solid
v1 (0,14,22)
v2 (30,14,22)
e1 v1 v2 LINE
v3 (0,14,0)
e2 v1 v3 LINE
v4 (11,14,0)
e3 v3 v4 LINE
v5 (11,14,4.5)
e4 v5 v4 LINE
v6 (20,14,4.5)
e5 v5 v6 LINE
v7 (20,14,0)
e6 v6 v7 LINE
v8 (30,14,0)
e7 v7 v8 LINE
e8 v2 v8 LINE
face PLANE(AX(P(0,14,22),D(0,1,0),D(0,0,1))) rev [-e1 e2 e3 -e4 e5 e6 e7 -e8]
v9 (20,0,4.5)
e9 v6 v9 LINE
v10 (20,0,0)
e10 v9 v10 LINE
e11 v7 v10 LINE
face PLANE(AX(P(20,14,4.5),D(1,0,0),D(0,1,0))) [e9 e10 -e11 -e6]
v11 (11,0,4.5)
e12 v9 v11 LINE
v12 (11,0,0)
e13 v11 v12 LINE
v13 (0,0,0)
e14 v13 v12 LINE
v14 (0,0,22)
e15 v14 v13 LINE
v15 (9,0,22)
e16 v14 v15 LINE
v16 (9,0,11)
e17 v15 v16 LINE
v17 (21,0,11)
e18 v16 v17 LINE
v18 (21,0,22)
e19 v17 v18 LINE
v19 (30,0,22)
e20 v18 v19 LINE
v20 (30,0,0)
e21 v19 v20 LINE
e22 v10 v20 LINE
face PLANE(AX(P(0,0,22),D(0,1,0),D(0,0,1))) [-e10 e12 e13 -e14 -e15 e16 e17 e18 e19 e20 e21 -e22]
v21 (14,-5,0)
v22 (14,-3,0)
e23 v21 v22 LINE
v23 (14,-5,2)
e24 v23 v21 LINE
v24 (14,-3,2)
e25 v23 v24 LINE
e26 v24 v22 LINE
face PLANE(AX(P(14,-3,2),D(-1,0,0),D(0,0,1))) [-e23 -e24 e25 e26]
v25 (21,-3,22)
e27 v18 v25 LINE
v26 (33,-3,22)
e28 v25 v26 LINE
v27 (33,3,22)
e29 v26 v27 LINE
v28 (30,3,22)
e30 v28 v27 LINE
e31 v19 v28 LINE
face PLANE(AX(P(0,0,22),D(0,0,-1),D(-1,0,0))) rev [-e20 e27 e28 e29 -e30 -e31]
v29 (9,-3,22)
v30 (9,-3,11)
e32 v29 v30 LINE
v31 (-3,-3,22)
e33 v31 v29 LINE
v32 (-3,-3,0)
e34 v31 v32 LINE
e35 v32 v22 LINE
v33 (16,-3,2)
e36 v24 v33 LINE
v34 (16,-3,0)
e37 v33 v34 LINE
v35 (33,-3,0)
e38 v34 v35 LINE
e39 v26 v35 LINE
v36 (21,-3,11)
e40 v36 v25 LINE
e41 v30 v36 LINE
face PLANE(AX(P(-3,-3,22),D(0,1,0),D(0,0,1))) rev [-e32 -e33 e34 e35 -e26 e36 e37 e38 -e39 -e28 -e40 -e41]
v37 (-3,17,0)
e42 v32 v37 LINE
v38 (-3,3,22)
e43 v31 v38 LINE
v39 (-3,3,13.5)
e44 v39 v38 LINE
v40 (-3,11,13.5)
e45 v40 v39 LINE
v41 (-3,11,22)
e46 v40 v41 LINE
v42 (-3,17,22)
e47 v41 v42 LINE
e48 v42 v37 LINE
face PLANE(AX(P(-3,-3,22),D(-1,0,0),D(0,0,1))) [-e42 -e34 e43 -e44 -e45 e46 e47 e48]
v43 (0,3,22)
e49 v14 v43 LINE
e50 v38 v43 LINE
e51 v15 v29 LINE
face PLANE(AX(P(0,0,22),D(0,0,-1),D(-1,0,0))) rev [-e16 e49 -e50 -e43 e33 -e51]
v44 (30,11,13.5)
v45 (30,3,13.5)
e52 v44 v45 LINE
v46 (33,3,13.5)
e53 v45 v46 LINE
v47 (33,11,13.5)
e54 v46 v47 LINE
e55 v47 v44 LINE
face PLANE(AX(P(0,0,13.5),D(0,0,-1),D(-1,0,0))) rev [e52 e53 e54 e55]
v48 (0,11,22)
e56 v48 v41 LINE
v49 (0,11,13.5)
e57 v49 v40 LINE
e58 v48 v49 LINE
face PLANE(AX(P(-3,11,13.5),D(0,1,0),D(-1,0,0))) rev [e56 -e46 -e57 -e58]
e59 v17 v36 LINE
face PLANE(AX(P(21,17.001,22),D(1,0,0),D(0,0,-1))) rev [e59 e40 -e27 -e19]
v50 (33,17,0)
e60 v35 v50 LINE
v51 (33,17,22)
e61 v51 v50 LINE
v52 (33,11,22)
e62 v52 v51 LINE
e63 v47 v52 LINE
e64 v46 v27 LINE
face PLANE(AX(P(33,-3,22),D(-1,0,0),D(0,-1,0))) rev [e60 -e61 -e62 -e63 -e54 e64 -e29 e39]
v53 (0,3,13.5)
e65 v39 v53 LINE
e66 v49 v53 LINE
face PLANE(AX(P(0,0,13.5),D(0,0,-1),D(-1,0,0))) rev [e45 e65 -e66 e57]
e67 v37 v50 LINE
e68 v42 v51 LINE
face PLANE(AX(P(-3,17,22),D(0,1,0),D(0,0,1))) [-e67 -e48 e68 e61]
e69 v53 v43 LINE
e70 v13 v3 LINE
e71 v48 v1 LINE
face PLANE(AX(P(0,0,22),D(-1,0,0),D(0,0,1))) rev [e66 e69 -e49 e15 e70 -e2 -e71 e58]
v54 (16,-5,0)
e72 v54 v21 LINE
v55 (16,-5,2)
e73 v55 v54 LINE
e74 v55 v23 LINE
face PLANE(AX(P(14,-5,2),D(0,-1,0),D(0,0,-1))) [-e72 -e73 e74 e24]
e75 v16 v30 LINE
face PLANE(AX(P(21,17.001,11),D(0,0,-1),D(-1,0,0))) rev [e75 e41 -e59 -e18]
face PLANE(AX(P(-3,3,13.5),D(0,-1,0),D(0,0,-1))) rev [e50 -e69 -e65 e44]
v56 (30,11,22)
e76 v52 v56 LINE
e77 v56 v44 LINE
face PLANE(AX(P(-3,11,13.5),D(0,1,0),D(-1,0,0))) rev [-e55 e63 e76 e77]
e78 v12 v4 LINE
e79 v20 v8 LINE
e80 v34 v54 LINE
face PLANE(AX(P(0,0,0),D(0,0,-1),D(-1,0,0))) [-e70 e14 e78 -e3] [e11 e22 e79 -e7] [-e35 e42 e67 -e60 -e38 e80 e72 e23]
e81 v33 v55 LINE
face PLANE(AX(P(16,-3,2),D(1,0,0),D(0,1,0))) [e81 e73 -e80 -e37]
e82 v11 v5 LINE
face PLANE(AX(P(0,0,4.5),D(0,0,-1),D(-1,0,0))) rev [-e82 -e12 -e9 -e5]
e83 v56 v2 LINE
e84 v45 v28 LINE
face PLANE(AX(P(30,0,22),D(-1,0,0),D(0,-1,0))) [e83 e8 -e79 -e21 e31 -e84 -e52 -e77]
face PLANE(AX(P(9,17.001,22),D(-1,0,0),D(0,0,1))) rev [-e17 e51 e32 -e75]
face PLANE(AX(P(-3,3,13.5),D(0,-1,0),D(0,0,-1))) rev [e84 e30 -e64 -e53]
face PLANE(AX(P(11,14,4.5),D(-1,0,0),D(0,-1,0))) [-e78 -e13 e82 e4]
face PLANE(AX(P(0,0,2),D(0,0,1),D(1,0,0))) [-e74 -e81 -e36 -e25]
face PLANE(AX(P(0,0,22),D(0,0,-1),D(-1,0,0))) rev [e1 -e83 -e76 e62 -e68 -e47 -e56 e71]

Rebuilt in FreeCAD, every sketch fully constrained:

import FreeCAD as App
import Part
import Sketcher

V = App.Vector
Q = App.Units.Quantity


def add_polygon(sketch, points):
    """Adds a closed chain of lines whose ends are joined by coincident constraints."""
    first, n = sketch.GeometryCount, len(points)
    for a, b in zip(points, points[1:] + points[:1]):
        sketch.addGeometry(Part.LineSegment(App.Vector(*a, 0), App.Vector(*b, 0)), False)
    for i in range(n):
        sketch.addConstraint(Sketcher.Constraint("Coincident", first + i, 2, first + (i + 1) % n, 1))

doc = App.newDocument("Part")
params = doc.addObject("Spreadsheet::Sheet", "Params")
for row, (alias, value) in enumerate([
    ("sketch1_width", "36 mm"),
    ("sketch1_width2", "30 mm"),
    ("sketch1_height", "20 mm"),
    ("sketch1_height2", "14 mm"),
    ("pad1_length", "22 mm"),
    ("sketch2_width", "9 mm"),
    ("sketch2_height", "14 mm"),
    ("pad2_length", "4.5 mm"),
    ("sketch3_width", "2 mm"),
    ("pad3_length", "2 mm"),
    ("sketch4_width", "12 mm"),
    ("sketch4_height", "11 mm"),
    ("sketch5_width", "36 mm"),
    ("sketch5_height", "8 mm"),
    ("pocket2_length", "8.5 mm"),
], start=1):
    params.set(f"A{row}", alias)
    params.set(f"B{row}", "=" + value)
    params.setAlias(f"B{row}", alias)

body = doc.addObject("PartDesign::Body", "Body")

# Sketch on XY plane
sketch1 = doc.addObject("Sketcher::SketchObject", "Sketch")
body.addObject(sketch1)
sketch1.AttachmentSupport = (doc.XY_Plane, [""])
sketch1.MapMode = "FlatFace"
add_polygon(sketch1, [(-3, 17), (-3, -3), (33, -3), (33, 17)])  # lines 0-3
add_polygon(sketch1, [(30, 0), (0, 0), (0, 14), (30, 14)])  # lines 4-7
sketch1.addConstraint([
    Sketcher.Constraint("Vertical", 0),
    Sketcher.Constraint("Horizontal", 1),
    Sketcher.Constraint("Vertical", 2),
    Sketcher.Constraint("Horizontal", 3),
    Sketcher.Constraint("Horizontal", 4),
    Sketcher.Constraint("Vertical", 5),
    Sketcher.Constraint("Horizontal", 6),
    Sketcher.Constraint("Vertical", 7),
    Sketcher.Constraint("Coincident", 4, 2, -1, 1),
    Sketcher.Constraint("DistanceX", 1, 1, 1, 2, Q("36 mm")),
    Sketcher.Constraint("DistanceX", 4, 2, 4, 1, Q("30 mm")),
    Sketcher.Constraint("DistanceY", 0, 2, 0, 1, Q("20 mm")),
    Sketcher.Constraint("DistanceY", 5, 1, 5, 2, Q("14 mm")),
    Sketcher.Constraint("DistanceX", 0, 2, -1, 1, Q("3 mm")),
    Sketcher.Constraint("DistanceY", 0, 2, -1, 1, Q("3 mm")),
])
sketch1.setExpression("Constraints[17]", "Params.sketch1_width")
sketch1.setExpression("Constraints[18]", "Params.sketch1_width2")
sketch1.setExpression("Constraints[19]", "Params.sketch1_height")
sketch1.setExpression("Constraints[20]", "Params.sketch1_height2")
pad1 = doc.addObject("PartDesign::Pad", "Pad")
body.addObject(pad1)
pad1.Profile = sketch1
pad1.setExpression("Length", "Params.pad1_length")

# Sketch on XY plane
sketch2 = doc.addObject("Sketcher::SketchObject", "Sketch001")
body.addObject(sketch2)
sketch2.AttachmentSupport = (doc.XY_Plane, [""])
sketch2.MapMode = "FlatFace"
add_polygon(sketch2, [(20, 14), (20, 0), (11, 0), (11, 14)])  # lines 0-3
sketch2.addConstraint([
    Sketcher.Constraint("Vertical", 0),
    Sketcher.Constraint("Horizontal", 1),
    Sketcher.Constraint("Vertical", 2),
    Sketcher.Constraint("Horizontal", 3),
    Sketcher.Constraint("PointOnObject", 0, 2, -1),
    Sketcher.Constraint("DistanceX", 1, 2, 1, 1, Q("9 mm")),
    Sketcher.Constraint("DistanceY", 0, 2, 0, 1, Q("14 mm")),
    Sketcher.Constraint("DistanceX", -1, 1, 0, 2, Q("20 mm")),
])
sketch2.setExpression("Constraints[9]", "Params.sketch2_width")
sketch2.setExpression("Constraints[10]", "Params.sketch2_height")
pad2 = doc.addObject("PartDesign::Pad", "Pad001")
body.addObject(pad2)
pad2.Profile = sketch2
pad2.setExpression("Length", "Params.pad2_length")

# Sketch on XY plane
sketch3 = doc.addObject("Sketcher::SketchObject", "Sketch002")
body.addObject(sketch3)
sketch3.AttachmentSupport = (doc.XY_Plane, [""])
sketch3.MapMode = "FlatFace"
add_polygon(sketch3, [(16, -3), (16, -5), (14, -5), (14, -3)])  # lines 0-3
sketch3.addConstraint([
    Sketcher.Constraint("Vertical", 0),
    Sketcher.Constraint("Horizontal", 1),
    Sketcher.Constraint("Vertical", 2),
    Sketcher.Constraint("Horizontal", 3),
    Sketcher.Constraint("Equal", 3, 0),
    Sketcher.Constraint("DistanceX", 1, 2, 1, 1, Q("2 mm")),
    Sketcher.Constraint("DistanceX", -1, 1, 0, 2, Q("16 mm")),
    Sketcher.Constraint("DistanceY", 0, 2, -1, 1, Q("5 mm")),
])
sketch3.setExpression("Constraints[9]", "Params.sketch3_width")
pad3 = doc.addObject("PartDesign::Pad", "Pad002")
body.addObject(pad3)
pad3.Profile = sketch3
pad3.setExpression("Length", "Params.pad3_length")

# Sketch on XZ plane
sketch4 = doc.addObject("Sketcher::SketchObject", "Sketch003")
body.addObject(sketch4)
sketch4.AttachmentSupport = (doc.XZ_Plane, [""])
sketch4.MapMode = "FlatFace"
sketch4.AttachmentOffset = App.Placement(V(0, 0, 3), App.Rotation())
add_polygon(sketch4, [(9, 22), (9, 11), (21, 11), (21, 22)])  # lines 0-3
sketch4.addConstraint([
    Sketcher.Constraint("Vertical", 0),
    Sketcher.Constraint("Horizontal", 1),
    Sketcher.Constraint("Vertical", 2),
    Sketcher.Constraint("Horizontal", 3),
    Sketcher.Constraint("DistanceX", 1, 1, 1, 2, Q("12 mm")),
    Sketcher.Constraint("DistanceY", 0, 2, 0, 1, Q("11 mm")),
    Sketcher.Constraint("DistanceX", -1, 1, 0, 2, Q("9 mm")),
    Sketcher.Constraint("DistanceY", -1, 1, 0, 2, Q("11 mm")),
])
sketch4.setExpression("Constraints[8]", "Params.sketch4_width")
sketch4.setExpression("Constraints[9]", "Params.sketch4_height")
pocket1 = doc.addObject("PartDesign::Pocket", "Pocket")
body.addObject(pocket1)
pocket1.Profile = sketch4
pocket1.Type = "UpToFirst"

# Sketch on XY plane
sketch5 = doc.addObject("Sketcher::SketchObject", "Sketch004")
body.addObject(sketch5)
sketch5.AttachmentSupport = (doc.XY_Plane, [""])
sketch5.MapMode = "FlatFace"
sketch5.AttachmentOffset = App.Placement(V(0, 0, 22), App.Rotation())
add_polygon(sketch5, [(-3, 11), (-3, 3), (33, 3), (33, 11)])  # lines 0-3
sketch5.addConstraint([
    Sketcher.Constraint("Vertical", 0),
    Sketcher.Constraint("Horizontal", 1),
    Sketcher.Constraint("Vertical", 2),
    Sketcher.Constraint("Horizontal", 3),
    Sketcher.Constraint("DistanceX", 1, 1, 1, 2, Q("36 mm")),
    Sketcher.Constraint("DistanceY", 0, 2, 0, 1, Q("8 mm")),
    Sketcher.Constraint("DistanceX", 0, 2, -1, 1, Q("3 mm")),
    Sketcher.Constraint("DistanceY", -1, 1, 0, 2, Q("3 mm")),
])
sketch5.setExpression("Constraints[8]", "Params.sketch5_width")
sketch5.setExpression("Constraints[9]", "Params.sketch5_height")
pocket2 = doc.addObject("PartDesign::Pocket", "Pocket001")
body.addObject(pocket2)
pocket2.Profile = sketch5
pocket2.setExpression("Length", "Params.pocket2_length")

doc.recompute()
